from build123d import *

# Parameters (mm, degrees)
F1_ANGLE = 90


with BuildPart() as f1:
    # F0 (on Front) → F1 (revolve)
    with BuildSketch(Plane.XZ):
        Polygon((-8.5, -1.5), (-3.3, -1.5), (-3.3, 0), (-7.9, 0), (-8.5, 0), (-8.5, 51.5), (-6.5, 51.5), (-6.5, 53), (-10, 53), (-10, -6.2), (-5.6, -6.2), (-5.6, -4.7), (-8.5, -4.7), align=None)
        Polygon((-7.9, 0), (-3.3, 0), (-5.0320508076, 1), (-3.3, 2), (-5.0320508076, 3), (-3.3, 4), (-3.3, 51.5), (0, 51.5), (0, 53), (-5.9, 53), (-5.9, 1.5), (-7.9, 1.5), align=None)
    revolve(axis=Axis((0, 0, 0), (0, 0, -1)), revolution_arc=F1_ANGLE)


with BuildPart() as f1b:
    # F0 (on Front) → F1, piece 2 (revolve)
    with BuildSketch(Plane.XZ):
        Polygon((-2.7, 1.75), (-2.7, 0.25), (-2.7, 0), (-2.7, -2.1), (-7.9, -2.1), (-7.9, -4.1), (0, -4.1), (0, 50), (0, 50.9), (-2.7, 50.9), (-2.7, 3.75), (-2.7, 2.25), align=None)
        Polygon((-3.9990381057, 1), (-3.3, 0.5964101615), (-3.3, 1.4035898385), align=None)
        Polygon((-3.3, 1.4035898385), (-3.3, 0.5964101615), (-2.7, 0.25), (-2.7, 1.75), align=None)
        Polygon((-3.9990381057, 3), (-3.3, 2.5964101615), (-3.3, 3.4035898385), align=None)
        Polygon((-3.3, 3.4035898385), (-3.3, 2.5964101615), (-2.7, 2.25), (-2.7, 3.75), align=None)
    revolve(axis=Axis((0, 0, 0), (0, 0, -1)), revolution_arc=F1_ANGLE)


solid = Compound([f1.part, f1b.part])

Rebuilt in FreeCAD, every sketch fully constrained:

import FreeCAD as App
import Part
import Sketcher

V = App.Vector
Q = App.Units.Quantity


def add_polygon(sketch, points):
    """Adds a closed chain of lines whose ends are joined by coincident constraints."""
    first, n = sketch.GeometryCount, len(points)
    for a, b in zip(points, points[1:] + points[:1]):
        sketch.addGeometry(Part.LineSegment(App.Vector(*a, 0), App.Vector(*b, 0)), False)
    for i in range(n):
        sketch.addConstraint(Sketcher.Constraint("Coincident", first + i, 2, first + (i + 1) % n, 1))

doc = App.newDocument("Part")
body = doc.addObject("PartDesign::Body", "Body")

# Sketch on XZ plane
sketch1 = body.newObject("Sketcher::SketchObject", "Sketch")
sketch1.AttachmentSupport = (doc.getObject("XZ_Plane"), [""])
sketch1.MapMode = "FlatFace"
add_polygon(sketch1, [(-8.5, -1.5), (-3.3, -1.5), (-3.3, 0), (-5, 1), (-3.3, 2), (-5, 3), (-3.3, 4), (-3.3, 51.5), (0, 51.5), (0, 53), (-5.9, 53), (-5.9, 1.5), (-7.9, 1.5), (-7.9, 0), (-8.5, 0), (-8.5, 51.5), (-6.5, 51.5), (-6.5, 53), (-10, 53), (-10, -6.2), (-5.6, -6.2), (-5.6, -4.7), (-8.5, -4.7)])  # lines 0-22
sketch1.addConstraint([
    Sketcher.Constraint("Horizontal", 0),
    Sketcher.Constraint("Vertical", 1),
    Sketcher.Constraint("Vertical", 6),
    Sketcher.Constraint("Horizontal", 7),
    Sketcher.Constraint("Vertical", 8),
    Sketcher.Constraint("Horizontal", 9),
    Sketcher.Constraint("Vertical", 10),
    Sketcher.Constraint("Horizontal", 11),
    Sketcher.Constraint("Vertical", 12),
    Sketcher.Constraint("Horizontal", 13),
    Sketcher.Constraint("Vertical", 14),
    Sketcher.Constraint("Horizontal", 15),
    Sketcher.Constraint("Vertical", 16),
    Sketcher.Constraint("Horizontal", 17),
    Sketcher.Constraint("Vertical", 18),
    Sketcher.Constraint("Horizontal", 19),
    Sketcher.Constraint("Vertical", 20),
    Sketcher.Constraint("Horizontal", 21),
    Sketcher.Constraint("Vertical", 22),
    Sketcher.Constraint("PointOnObject", 1, 2, -1),
    Sketcher.Constraint("PointOnObject", 7, 2, -2),
    Sketcher.Constraint("PointOnObject", 12, 2, -1),
    Sketcher.Constraint("Parallel", 2, 4),
    Sketcher.Constraint("Parallel", 3, 5),
    Sketcher.Constraint("Horizontal", 7, 2, 14, 2),
    Sketcher.Constraint("Horizontal", 9, 2, 16, 2),
    Sketcher.Constraint("Vertical", 1, 2, 3, 2),
    Sketcher.Constraint("Vertical", 2, 2, 4, 2),
    Sketcher.Constraint("Vertical", 3, 2, 5, 2),
    Sketcher.Constraint("Vertical", 14, 2, 21, 2),
    Sketcher.Constraint("Equal", 11, 15),
    Sketcher.Constraint("Equal", 1, 8),
    Sketcher.Constraint("Equal", 8, 12),
    Sketcher.Constraint("Equal", 16, 20),
    Sketcher.Constraint("Equal", 2, 3),
    Sketcher.Constraint("DistanceX", 11, 2, 11, 1, 2.0),
    Sketcher.Constraint("Angle", 2, Q("150 deg")),
    Sketcher.Constraint("Distance", 2, 2.0),
    Sketcher.Constraint("DistanceX", 0, 1, 0, 2, 5.2),
    Sketcher.Constraint("DistanceX", 7, 1, 7, 2, 3.3),
    Sketcher.Constraint("DistanceX", 9, 2, 9, 1, 5.9),
    Sketcher.Constraint("DistanceX", 17, 2, 17, 1, 3.5),
    Sketcher.Constraint("DistanceX", 19, 1, 19, 2, 4.4),
    Sketcher.Constraint("DistanceY", 1, 1, 1, 2, 1.5),
    Sketcher.Constraint("DistanceY", 6, 1, 6, 2, 47.5),
    Sketcher.Constraint("DistanceY", 18, 2, 18, 1, 59.2),
])
revolution = body.newObject("PartDesign::Revolution", "Revolution")
revolution.Profile = sketch1
revolution.ReferenceAxis = (sketch1, ["V_Axis"])
revolution.Angle = 90
revolution.Reversed = True
body2 = doc.addObject("PartDesign::Body", "Body001")

# Sketch on XZ plane
sketch2 = body2.newObject("Sketcher::SketchObject", "Sketch001")
sketch2.AttachmentSupport = (doc.getObject("XZ_Plane001"), [""])
sketch2.MapMode = "FlatFace"
add_polygon(sketch2, [(-2.7, -2.1), (-7.9, -2.1), (-7.9, -4.1), (0, -4.1), (0, 50.9), (-2.7, 50.9), (-2.7, 3.8), (-3.3, 3.4), (-4, 3), (-3.3, 2.6), (-2.7, 2.2), (-2.7, 1.8), (-3.3, 1.4), (-4, 1), (-3.3, 0.6), (-2.7, 0.2)])  # lines 0-15
sketch2.addConstraint([
    Sketcher.Constraint("Horizontal", 0),
    Sketcher.Constraint("Vertical", 1),
    Sketcher.Constraint("Horizontal", 2),
    Sketcher.Constraint("Vertical", 3),
    Sketcher.Constraint("Horizontal", 4),
    Sketcher.Constraint("Vertical", 5),
    Sketcher.Constraint("Vertical", 10),
    Sketcher.Constraint("Vertical", 15),
    Sketcher.Constraint("PointOnObject", 2, 2, -2),
    Sketcher.Constraint("Parallel", 6, 7),
    Sketcher.Constraint("Parallel", 8, 9),
    Sketcher.Constraint("Parallel", 7, 11),
    Sketcher.Constraint("Parallel", 11, 12),
    Sketcher.Constraint("Parallel", 9, 13),
    Sketcher.Constraint("Parallel", 13, 14),
    Sketcher.Constraint("Vertical", 6, 2, 8, 2),
    Sketcher.Constraint("Vertical", 5, 2, 9, 2),
    Sketcher.Constraint("Vertical", 8, 2, 11, 2),
    Sketcher.Constraint("Vertical", 7, 2, 12, 2),
    Sketcher.Constraint("Vertical", 11, 2, 13, 2),
    Sketcher.Constraint("Vertical", 10, 2, 14, 2),
    Sketcher.Constraint("Equal", 7, 8),
    Sketcher.Constraint("DistanceY", 1, 2, 1, 1, 2.0),
    Sketcher.Constraint("DistanceY", 3, 1, 3, 2, 55.0),
    Sketcher.Constraint("Angle", 6, Q("-150 deg")),
    Sketcher.Constraint("DistanceX", 0, 2, 0, 1, 5.2),
    Sketcher.Constraint("DistanceX", 2, 1, 2, 2, 7.9),
    Sketcher.Constraint("DistanceY", 10, 2, 10, 1, 0.5),
    Sketcher.Constraint("DistanceY", -1, 1, 7, 2, 3.0),
    Sketcher.Constraint("DistanceY", -1, 1, 12, 2, 1.0),
    Sketcher.Constraint("DistanceY", 5, 2, 5, 1, 47.15),
    Sketcher.Constraint("DistanceX", 6, 2, -1, 1, 3.3),
])
revolution2 = body2.newObject("PartDesign::Revolution", "Revolution001")
revolution2.Profile = sketch2
revolution2.ReferenceAxis = (sketch2, ["V_Axis"])
revolution2.Angle = 90
revolution2.Reversed = True

doc.recompute()
